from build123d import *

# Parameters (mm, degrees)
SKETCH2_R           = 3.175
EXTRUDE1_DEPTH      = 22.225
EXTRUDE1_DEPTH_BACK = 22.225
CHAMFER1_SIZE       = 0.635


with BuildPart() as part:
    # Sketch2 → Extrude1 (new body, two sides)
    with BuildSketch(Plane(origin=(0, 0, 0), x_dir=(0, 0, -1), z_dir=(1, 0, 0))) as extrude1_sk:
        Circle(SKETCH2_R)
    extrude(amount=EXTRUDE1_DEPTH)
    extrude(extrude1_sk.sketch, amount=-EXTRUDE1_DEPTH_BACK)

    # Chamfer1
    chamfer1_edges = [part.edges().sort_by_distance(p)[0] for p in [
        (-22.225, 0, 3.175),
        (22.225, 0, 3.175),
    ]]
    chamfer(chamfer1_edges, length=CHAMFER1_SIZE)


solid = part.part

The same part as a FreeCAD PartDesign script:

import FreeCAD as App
import Part
import Sketcher

V = App.Vector
Q = App.Units.Quantity


def edges_at(feature, points):
    """Names of the edges that pass closest to the given points."""
    edges = feature.Shape.Edges
    near = lambda p: min(range(len(edges)), key=lambda i: edges[i].distToShape(Part.Vertex(*p))[0])
    return sorted({f"Edge{near(p) + 1}" for p in points})

doc = App.newDocument("Part")
body = doc.addObject("PartDesign::Body", "Body")

sketch1 = body.newObject("Sketcher::SketchObject", "Sketch")
sketch1.AttachmentSupport = (doc.getObject("YZ_Plane"), [""])
sketch1.MapMode = "FlatFace"
sketch1.addGeometry(Part.Circle(V(0, 0, 0), V(0, 0, 1), 3.2), False)
sketch1.addConstraint([
    Sketcher.Constraint("Coincident", 0, 3, -1, 1),
    Sketcher.Constraint("Diameter", 0, Q("0.25 in")),
])
pad1 = body.newObject("PartDesign::Pad", "Pad")
pad1.Profile = sketch1
pad1.Type = "TwoLengths"
pad1.Length = Q("0.875 in")
pad1.Length2 = Q("0.875 in")
doc.recompute()

chamfer = body.newObject("PartDesign::Chamfer", "Chamfer")
chamfer.Base = (pad1, edges_at(pad1, [(-22.225, 0, 3.175), (22.225, 0, 3.175)]))
chamfer.Size = Q("0.025 in")

doc.recompute()
